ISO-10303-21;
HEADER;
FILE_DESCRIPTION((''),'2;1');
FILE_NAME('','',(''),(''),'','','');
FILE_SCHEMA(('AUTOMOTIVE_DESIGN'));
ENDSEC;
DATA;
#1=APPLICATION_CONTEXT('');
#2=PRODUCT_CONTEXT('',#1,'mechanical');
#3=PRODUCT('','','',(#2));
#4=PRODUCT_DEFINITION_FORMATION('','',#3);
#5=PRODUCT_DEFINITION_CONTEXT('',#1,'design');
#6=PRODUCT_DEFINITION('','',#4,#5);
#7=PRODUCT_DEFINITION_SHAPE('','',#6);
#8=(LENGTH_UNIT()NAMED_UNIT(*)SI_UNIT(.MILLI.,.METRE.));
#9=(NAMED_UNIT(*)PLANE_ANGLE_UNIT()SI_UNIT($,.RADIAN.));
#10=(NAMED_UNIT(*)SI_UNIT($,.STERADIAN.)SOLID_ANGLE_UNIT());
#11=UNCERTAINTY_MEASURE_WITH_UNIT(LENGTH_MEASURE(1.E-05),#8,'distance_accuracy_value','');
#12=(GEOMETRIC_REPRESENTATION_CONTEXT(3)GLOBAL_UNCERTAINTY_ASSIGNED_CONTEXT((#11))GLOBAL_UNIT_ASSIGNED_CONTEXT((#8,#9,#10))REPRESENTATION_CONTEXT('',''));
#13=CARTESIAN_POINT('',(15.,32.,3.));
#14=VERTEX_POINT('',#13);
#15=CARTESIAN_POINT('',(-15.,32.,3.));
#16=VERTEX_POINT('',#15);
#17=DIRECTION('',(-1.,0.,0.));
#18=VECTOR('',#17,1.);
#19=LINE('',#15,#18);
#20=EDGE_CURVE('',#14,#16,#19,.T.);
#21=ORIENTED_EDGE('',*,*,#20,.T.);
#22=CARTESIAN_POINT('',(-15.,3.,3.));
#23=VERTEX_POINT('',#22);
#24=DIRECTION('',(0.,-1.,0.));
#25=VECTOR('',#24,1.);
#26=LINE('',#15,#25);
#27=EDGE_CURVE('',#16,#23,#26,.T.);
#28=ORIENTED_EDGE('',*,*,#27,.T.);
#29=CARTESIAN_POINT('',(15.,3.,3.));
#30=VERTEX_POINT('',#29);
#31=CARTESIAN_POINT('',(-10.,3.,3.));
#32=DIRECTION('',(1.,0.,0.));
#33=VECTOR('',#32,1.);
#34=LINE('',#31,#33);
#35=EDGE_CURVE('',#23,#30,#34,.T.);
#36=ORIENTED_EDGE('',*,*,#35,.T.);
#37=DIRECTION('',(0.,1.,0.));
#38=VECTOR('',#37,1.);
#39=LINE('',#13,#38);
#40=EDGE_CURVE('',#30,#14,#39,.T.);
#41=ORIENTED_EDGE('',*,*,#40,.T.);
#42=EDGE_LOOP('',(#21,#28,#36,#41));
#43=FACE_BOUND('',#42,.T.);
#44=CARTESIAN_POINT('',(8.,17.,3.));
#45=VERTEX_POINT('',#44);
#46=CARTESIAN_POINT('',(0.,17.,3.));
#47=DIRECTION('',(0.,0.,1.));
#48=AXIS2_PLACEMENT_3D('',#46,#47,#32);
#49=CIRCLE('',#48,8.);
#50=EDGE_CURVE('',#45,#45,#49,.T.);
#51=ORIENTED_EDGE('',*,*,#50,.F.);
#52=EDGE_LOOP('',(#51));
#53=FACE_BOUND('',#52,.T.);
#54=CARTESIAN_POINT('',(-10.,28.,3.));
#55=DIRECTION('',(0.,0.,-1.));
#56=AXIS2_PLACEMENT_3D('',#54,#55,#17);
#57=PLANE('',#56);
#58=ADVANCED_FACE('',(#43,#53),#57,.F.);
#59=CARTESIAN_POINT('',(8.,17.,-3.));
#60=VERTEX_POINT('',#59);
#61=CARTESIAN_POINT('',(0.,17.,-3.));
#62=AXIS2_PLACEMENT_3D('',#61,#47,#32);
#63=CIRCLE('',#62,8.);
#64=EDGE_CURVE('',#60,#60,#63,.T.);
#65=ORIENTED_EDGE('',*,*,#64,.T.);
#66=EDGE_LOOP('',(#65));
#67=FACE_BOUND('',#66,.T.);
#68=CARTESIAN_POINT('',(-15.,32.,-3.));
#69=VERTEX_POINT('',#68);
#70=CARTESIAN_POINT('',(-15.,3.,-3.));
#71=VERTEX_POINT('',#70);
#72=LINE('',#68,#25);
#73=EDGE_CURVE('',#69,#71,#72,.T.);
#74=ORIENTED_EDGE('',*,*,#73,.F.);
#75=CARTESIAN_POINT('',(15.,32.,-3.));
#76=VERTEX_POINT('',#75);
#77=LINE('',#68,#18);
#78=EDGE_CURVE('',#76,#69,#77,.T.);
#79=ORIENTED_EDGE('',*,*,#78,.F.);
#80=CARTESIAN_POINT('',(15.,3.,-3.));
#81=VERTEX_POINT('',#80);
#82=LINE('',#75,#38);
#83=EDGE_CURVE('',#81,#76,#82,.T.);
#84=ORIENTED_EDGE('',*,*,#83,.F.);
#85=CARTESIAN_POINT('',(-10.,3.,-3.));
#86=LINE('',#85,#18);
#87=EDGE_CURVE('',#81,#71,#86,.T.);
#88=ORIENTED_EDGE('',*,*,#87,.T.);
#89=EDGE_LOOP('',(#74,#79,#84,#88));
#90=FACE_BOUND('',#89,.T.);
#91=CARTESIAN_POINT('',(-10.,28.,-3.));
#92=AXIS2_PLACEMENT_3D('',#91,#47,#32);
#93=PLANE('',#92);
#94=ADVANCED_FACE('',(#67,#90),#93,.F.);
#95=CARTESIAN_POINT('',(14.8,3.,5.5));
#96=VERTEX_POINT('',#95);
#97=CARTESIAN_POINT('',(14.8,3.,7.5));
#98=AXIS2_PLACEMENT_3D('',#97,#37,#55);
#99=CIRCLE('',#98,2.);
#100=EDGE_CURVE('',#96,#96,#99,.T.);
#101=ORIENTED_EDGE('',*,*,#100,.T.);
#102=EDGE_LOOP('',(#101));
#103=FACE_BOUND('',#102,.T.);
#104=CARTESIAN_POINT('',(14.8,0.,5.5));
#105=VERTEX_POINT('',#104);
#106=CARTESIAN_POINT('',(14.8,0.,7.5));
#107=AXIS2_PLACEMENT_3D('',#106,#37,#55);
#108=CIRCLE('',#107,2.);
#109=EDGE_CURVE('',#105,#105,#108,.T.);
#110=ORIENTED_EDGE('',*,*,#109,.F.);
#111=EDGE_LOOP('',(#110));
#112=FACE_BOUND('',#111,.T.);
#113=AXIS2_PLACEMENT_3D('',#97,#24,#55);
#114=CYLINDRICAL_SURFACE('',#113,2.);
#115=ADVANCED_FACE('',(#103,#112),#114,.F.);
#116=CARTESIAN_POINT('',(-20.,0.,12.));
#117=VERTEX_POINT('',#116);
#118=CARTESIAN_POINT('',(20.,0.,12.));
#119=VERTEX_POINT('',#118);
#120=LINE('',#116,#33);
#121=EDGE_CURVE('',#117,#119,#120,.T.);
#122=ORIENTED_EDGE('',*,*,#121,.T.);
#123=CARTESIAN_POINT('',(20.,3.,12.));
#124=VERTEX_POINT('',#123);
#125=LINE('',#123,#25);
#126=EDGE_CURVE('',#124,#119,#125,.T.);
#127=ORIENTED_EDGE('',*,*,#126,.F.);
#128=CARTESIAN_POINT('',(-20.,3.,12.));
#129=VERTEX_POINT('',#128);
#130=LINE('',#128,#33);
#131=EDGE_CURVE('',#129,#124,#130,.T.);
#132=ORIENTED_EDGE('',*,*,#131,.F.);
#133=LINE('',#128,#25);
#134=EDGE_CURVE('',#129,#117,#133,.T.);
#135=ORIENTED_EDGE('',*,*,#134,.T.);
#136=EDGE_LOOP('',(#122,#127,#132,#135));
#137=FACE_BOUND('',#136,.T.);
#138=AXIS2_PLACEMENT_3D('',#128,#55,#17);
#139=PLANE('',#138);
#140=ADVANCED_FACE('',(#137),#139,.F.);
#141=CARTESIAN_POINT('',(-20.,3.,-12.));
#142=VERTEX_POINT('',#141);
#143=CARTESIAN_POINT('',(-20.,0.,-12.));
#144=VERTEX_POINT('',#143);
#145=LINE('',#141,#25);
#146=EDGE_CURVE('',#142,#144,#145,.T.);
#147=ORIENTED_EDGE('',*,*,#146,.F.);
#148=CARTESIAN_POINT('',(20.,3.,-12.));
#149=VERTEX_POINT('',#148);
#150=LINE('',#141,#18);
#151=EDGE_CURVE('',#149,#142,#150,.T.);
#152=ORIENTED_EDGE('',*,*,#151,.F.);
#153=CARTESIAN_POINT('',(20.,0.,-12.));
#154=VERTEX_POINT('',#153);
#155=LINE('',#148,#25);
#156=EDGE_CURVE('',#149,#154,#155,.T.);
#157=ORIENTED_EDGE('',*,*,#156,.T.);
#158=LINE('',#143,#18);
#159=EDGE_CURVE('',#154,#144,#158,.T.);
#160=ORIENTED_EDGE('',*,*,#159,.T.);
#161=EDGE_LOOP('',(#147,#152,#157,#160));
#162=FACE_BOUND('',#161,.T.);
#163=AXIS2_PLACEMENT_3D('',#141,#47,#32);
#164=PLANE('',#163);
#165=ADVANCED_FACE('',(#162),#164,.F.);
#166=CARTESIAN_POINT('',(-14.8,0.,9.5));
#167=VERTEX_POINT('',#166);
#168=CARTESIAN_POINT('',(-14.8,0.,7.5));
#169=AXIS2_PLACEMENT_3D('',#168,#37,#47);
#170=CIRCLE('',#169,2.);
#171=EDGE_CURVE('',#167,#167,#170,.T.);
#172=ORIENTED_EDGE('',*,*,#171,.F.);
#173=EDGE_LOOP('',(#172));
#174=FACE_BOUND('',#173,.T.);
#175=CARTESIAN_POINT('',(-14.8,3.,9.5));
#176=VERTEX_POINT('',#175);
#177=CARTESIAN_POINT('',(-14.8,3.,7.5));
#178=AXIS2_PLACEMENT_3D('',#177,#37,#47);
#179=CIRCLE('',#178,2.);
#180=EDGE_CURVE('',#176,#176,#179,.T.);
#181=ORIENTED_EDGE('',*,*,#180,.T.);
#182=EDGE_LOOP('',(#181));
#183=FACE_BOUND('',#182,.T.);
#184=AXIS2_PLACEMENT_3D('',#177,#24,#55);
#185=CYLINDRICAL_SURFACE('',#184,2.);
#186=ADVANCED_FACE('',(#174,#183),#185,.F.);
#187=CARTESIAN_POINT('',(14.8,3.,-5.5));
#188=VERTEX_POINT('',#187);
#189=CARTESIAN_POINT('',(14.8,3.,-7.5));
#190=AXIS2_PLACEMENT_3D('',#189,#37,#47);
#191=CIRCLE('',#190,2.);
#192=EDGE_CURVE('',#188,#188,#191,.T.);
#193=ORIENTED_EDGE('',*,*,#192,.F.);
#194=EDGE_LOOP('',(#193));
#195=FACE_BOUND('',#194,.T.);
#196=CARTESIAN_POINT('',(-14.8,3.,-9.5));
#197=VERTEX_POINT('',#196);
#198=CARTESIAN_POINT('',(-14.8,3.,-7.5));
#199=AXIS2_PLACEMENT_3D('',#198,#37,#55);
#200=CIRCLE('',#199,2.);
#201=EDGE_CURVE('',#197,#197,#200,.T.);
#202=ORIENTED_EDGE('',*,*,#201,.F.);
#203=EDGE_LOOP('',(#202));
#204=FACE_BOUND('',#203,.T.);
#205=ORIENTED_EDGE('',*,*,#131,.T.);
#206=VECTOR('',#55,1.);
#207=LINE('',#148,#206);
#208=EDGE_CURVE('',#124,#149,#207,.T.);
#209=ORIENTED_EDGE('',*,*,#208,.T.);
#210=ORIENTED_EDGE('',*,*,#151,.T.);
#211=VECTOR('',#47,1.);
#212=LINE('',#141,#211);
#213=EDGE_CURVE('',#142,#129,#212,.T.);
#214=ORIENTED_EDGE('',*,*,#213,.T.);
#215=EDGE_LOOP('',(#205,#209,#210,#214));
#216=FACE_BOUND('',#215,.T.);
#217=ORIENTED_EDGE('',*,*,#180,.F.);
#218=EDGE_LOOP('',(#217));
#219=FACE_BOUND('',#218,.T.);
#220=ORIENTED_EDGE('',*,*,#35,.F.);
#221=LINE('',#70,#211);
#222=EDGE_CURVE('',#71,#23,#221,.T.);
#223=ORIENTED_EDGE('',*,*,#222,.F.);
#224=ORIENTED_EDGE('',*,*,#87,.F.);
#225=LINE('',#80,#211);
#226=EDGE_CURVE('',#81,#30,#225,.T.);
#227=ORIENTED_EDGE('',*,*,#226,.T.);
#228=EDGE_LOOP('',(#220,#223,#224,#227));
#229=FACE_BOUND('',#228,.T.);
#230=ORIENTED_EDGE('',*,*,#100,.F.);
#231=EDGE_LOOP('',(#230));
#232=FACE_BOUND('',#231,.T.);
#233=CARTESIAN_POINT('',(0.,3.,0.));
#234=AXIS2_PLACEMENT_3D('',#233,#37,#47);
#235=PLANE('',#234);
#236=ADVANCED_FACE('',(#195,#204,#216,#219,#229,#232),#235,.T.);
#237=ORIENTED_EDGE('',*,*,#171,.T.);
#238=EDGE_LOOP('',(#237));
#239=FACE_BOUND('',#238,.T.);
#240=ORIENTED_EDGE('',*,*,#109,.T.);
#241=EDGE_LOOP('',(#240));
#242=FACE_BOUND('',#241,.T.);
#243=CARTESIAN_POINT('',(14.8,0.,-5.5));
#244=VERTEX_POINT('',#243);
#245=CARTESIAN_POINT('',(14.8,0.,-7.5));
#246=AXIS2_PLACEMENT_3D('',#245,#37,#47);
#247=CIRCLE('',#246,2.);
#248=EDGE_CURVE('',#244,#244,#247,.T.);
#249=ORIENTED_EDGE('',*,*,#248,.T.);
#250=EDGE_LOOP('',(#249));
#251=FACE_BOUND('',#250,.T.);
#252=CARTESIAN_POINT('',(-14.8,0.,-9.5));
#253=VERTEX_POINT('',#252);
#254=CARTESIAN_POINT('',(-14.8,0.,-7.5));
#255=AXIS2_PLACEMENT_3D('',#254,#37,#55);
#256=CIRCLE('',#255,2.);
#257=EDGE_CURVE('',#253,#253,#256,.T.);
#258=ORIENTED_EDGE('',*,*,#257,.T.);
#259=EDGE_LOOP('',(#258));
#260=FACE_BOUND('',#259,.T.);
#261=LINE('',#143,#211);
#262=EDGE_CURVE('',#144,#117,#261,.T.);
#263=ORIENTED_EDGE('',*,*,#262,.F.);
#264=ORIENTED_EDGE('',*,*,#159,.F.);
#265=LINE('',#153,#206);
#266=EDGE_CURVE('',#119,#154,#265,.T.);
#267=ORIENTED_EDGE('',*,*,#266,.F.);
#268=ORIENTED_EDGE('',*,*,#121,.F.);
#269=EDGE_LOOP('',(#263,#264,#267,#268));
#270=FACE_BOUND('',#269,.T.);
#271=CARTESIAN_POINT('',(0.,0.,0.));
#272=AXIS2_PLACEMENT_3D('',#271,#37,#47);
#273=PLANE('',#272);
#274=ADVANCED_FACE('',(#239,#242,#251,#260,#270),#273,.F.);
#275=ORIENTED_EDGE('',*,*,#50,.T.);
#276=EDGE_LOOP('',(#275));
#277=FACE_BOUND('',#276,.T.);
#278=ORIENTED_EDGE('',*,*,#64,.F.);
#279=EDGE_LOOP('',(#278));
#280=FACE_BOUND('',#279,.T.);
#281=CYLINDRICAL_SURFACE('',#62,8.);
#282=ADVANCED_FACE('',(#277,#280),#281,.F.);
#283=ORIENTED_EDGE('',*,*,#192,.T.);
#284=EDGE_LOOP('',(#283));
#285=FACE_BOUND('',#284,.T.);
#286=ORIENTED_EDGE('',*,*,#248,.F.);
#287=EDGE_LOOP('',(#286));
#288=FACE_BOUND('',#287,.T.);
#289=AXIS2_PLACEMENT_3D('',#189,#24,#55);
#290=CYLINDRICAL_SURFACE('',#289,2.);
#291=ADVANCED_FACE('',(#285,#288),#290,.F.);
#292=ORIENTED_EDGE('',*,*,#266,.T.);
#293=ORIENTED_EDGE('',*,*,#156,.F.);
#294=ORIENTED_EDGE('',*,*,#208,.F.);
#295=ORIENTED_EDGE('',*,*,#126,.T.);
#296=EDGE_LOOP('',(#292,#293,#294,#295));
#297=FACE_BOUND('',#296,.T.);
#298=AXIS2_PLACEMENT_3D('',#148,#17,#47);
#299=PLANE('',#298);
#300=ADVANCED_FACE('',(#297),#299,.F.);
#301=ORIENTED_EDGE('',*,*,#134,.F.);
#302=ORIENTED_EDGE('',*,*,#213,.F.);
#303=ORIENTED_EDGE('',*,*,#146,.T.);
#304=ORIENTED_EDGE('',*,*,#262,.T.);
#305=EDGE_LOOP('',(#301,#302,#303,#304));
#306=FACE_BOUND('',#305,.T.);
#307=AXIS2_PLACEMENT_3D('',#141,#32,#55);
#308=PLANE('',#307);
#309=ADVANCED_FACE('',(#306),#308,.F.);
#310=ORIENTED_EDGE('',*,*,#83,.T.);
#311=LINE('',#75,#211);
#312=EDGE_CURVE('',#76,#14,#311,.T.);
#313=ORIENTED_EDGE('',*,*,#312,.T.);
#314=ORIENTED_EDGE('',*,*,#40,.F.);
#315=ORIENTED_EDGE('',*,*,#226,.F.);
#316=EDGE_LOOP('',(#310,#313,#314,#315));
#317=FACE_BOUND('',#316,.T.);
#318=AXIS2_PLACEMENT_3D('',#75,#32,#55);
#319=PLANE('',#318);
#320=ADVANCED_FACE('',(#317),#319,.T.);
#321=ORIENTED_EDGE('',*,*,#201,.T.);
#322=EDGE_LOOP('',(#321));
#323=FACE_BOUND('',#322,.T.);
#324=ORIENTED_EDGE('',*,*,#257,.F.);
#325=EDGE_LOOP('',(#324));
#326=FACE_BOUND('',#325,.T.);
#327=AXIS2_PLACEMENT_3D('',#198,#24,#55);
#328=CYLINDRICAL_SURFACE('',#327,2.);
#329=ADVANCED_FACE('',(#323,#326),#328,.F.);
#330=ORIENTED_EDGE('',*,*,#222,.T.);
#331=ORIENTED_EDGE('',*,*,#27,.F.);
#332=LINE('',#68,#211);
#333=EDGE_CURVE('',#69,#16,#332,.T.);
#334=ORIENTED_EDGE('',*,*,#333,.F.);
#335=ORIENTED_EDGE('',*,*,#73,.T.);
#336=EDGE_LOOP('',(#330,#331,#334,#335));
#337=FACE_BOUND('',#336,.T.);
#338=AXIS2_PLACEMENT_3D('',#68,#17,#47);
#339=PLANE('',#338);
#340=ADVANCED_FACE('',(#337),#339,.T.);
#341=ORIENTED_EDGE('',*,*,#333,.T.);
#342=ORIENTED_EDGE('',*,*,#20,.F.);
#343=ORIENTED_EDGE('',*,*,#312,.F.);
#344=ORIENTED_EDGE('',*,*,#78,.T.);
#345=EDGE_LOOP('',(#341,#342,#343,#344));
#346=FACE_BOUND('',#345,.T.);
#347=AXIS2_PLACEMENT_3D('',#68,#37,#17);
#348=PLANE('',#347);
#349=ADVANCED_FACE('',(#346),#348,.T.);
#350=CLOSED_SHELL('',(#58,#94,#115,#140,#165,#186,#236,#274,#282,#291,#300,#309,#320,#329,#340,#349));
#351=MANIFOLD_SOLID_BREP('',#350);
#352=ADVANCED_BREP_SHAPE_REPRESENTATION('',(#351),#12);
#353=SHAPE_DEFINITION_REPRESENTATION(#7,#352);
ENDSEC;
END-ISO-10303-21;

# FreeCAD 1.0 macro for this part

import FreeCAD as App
import Part
import Sketcher

V = App.Vector


def add_polygon(sketch, points):
    """Adds a closed chain of lines whose ends are joined by coincident constraints."""
    first, n = sketch.GeometryCount, len(points)
    for a, b in zip(points, points[1:] + points[:1]):
        sketch.addGeometry(Part.LineSegment(App.Vector(*a, 0), App.Vector(*b, 0)), False)
    for i in range(n):
        sketch.addConstraint(Sketcher.Constraint("Coincident", first + i, 2, first + (i + 1) % n, 1))

doc = App.newDocument("Part")
body = doc.addObject("PartDesign::Body", "Body")

# Sketch on XZ plane
sketch1 = doc.addObject("Sketcher::SketchObject", "Sketch")
body.addObject(sketch1)
sketch1.AttachmentSupport = (doc.XZ_Plane, [""])
sketch1.MapMode = "FlatFace"
add_polygon(sketch1, [(-20, -12), (-20, 12), (20, 12), (20, -12)])  # lines 0-3
sketch1.addGeometry(Part.Circle(V(-14.8, 7.5, 0), V(0, 0, 1), 2), False)  # 4
sketch1.addGeometry(Part.Circle(V(14.8, 7.5, 0), V(0, 0, 1), 2), False)  # 5
sketch1.addGeometry(Part.Circle(V(-14.8, -7.5, 0), V(0, 0, 1), 2), False)  # 6
sketch1.addGeometry(Part.Circle(V(14.8, -7.5, 0), V(0, 0, 1), 2), False)  # 7
sketch1.addConstraint(Sketcher.Constraint("Vertical", 0))
sketch1.addConstraint(Sketcher.Constraint("Horizontal", 1))
sketch1.addConstraint(Sketcher.Constraint("Vertical", 2))
sketch1.addConstraint(Sketcher.Constraint("Horizontal", 3))
sketch1.addConstraint(Sketcher.Constraint("Equal", 4, 5))
sketch1.addConstraint(Sketcher.Constraint("Equal", 5, 6))
sketch1.addConstraint(Sketcher.Constraint("Equal", 6, 7))
sketch1.addConstraint(Sketcher.Constraint("Symmetric", 5, 3, 6, 3, -1, 1))
sketch1.addConstraint(Sketcher.Constraint("Symmetric", 4, 3, 7, 3, -1, 1))
sketch1.addConstraint(Sketcher.Constraint("Symmetric", 0, 2, 2, 2, -1, 1))
sketch1.addConstraint(Sketcher.Constraint("Symmetric", 4, 3, 5, 3, -2))
sketch1.addConstraint(Sketcher.Constraint("Diameter", 4, 4.0))
sketch1.addConstraint(Sketcher.Constraint("DistanceX", 1, 1, 1, 2, 40.0))
sketch1.addConstraint(Sketcher.Constraint("DistanceY", 0, 1, 0, 2, 24.0))
sketch1.addConstraint(Sketcher.Constraint("DistanceY", 6, 3, 4, 3, 15.0))
sketch1.addConstraint(Sketcher.Constraint("DistanceX", 4, 3, -1, 1, 14.8))
pad1 = doc.addObject("PartDesign::Pad", "Pad")
body.addObject(pad1)
pad1.Profile = sketch1
pad1.Length = 3
pad1.Reversed = True

# Sketch on XZ plane
sketch2 = doc.addObject("Sketcher::SketchObject", "Sketch001")
body.addObject(sketch2)
sketch2.AttachmentSupport = (doc.XZ_Plane, [""])
sketch2.MapMode = "FlatFace"
sketch2.AttachmentOffset = App.Placement(V(0, 0, -3), App.Rotation())
add_polygon(sketch2, [(-10, -3), (-10, 3), (10, 3), (10, -3)])  # lines 0-3
sketch2.addConstraint(Sketcher.Constraint("Vertical", 0))
sketch2.addConstraint(Sketcher.Constraint("Horizontal", 1))
sketch2.addConstraint(Sketcher.Constraint("Vertical", 2))
sketch2.addConstraint(Sketcher.Constraint("Horizontal", 3))
sketch2.addConstraint(Sketcher.Constraint("Symmetric", 0, 2, 2, 2, -1, 1))
sketch2.addConstraint(Sketcher.Constraint("DistanceX", 1, 1, 1, 2, 20.0))
sketch2.addConstraint(Sketcher.Constraint("DistanceY", 0, 1, 0, 2, 6.0))
pad2 = doc.addObject("PartDesign::Pad", "Pad001")
body.addObject(pad2)
pad2.Profile = sketch2
pad2.Length = 25
pad2.Reversed = True

# Sketch on XY plane
sketch3 = doc.addObject("Sketcher::SketchObject", "Sketch002")
body.addObject(sketch3)
sketch3.AttachmentSupport = (doc.XY_Plane, [""])
sketch3.MapMode = "FlatFace"
sketch3.AttachmentOffset = App.Placement(V(0, 0, 3), App.Rotation())
sketch3.addGeometry(Part.Circle(V(0, 17, 0), V(0, 0, 1), 8), False)
sketch3.addConstraint(Sketcher.Constraint("PointOnObject", 0, 3, -2))
sketch3.addConstraint(Sketcher.Constraint("Diameter", 0, 15.875))
sketch3.addConstraint(Sketcher.Constraint("DistanceY", -1, 1, 0, 3, 17.0))
pocket1 = doc.addObject("PartDesign::Pocket", "Pocket")
body.addObject(pocket1)
pocket1.Profile = sketch3
pocket1.Length = 10

# Sketch on XY plane
sketch4 = doc.addObject("Sketcher::SketchObject", "Sketch003")
body.addObject(sketch4)
sketch4.AttachmentSupport = (doc.XY_Plane, [""])
sketch4.MapMode = "FlatFace"
sketch4.AttachmentOffset = App.Placement(V(0, 0, 3), App.Rotation())
add_polygon(sketch4, [(-15, 32), (-15, 3), (-10, 3), (-10, 28), (10, 28), (10, 3), (15, 3), (15, 32)])  # lines 0-7
sketch4.addConstraint(Sketcher.Constraint("Vertical", 0))
sketch4.addConstraint(Sketcher.Constraint("Horizontal", 1))
sketch4.addConstraint(Sketcher.Constraint("Vertical", 2))
sketch4.addConstraint(Sketcher.Constraint("Horizontal", 3))
sketch4.addConstraint(Sketcher.Constraint("Vertical", 4))
sketch4.addConstraint(Sketcher.Constraint("Horizontal", 5))
sketch4.addConstraint(Sketcher.Constraint("Vertical", 6))
sketch4.addConstraint(Sketcher.Constraint("Horizontal", 7))
sketch4.addConstraint(Sketcher.Constraint("Symmetric", 1, 2, 4, 2, -2))
sketch4.addConstraint(Sketcher.Constraint("Equal", 1, 5))
sketch4.addConstraint(Sketcher.Constraint("DistanceX", 1, 1, 1, 2, 5.0))
sketch4.addConstraint(Sketcher.Constraint("DistanceX", 3, 1, 3, 2, 20.0))
sketch4.addConstraint(Sketcher.Constraint("DistanceY", 0, 2, 0, 1, 29.0))
sketch4.addConstraint(Sketcher.Constraint("DistanceY", 2, 1, 2, 2, 25.0))
sketch4.addConstraint(Sketcher.Constraint("DistanceY", -1, 1, 0, 2, 3.0))
pad3 = doc.addObject("PartDesign::Pad", "Pad002")
body.addObject(pad3)
pad3.Profile = sketch4
pad3.Length = 6
pad3.Reversed = True

# Sketch on XY plane
sketch5 = doc.addObject("Sketcher::SketchObject", "Sketch004")
body.addObject(sketch5)
sketch5.AttachmentSupport = (doc.XY_Plane, [""])
sketch5.MapMode = "FlatFace"
sketch5.AttachmentOffset = App.Placement(V(0, 0, 3), App.Rotation())
sketch5.addGeometry(Part.Circle(V(0, 17, 0), V(0, 0, 1), 8), False)
sketch5.addConstraint(Sketcher.Constraint("PointOnObject", 0, 3, -2))
sketch5.addConstraint(Sketcher.Constraint("Diameter", 0, 16.0))
sketch5.addConstraint(Sketcher.Constraint("DistanceY", -1, 1, 0, 3, 17.0))
pocket2 = doc.addObject("PartDesign::Pocket", "Pocket001")
body.addObject(pocket2)
pocket2.Profile = sketch5
pocket2.Length = 6

doc.recompute()
